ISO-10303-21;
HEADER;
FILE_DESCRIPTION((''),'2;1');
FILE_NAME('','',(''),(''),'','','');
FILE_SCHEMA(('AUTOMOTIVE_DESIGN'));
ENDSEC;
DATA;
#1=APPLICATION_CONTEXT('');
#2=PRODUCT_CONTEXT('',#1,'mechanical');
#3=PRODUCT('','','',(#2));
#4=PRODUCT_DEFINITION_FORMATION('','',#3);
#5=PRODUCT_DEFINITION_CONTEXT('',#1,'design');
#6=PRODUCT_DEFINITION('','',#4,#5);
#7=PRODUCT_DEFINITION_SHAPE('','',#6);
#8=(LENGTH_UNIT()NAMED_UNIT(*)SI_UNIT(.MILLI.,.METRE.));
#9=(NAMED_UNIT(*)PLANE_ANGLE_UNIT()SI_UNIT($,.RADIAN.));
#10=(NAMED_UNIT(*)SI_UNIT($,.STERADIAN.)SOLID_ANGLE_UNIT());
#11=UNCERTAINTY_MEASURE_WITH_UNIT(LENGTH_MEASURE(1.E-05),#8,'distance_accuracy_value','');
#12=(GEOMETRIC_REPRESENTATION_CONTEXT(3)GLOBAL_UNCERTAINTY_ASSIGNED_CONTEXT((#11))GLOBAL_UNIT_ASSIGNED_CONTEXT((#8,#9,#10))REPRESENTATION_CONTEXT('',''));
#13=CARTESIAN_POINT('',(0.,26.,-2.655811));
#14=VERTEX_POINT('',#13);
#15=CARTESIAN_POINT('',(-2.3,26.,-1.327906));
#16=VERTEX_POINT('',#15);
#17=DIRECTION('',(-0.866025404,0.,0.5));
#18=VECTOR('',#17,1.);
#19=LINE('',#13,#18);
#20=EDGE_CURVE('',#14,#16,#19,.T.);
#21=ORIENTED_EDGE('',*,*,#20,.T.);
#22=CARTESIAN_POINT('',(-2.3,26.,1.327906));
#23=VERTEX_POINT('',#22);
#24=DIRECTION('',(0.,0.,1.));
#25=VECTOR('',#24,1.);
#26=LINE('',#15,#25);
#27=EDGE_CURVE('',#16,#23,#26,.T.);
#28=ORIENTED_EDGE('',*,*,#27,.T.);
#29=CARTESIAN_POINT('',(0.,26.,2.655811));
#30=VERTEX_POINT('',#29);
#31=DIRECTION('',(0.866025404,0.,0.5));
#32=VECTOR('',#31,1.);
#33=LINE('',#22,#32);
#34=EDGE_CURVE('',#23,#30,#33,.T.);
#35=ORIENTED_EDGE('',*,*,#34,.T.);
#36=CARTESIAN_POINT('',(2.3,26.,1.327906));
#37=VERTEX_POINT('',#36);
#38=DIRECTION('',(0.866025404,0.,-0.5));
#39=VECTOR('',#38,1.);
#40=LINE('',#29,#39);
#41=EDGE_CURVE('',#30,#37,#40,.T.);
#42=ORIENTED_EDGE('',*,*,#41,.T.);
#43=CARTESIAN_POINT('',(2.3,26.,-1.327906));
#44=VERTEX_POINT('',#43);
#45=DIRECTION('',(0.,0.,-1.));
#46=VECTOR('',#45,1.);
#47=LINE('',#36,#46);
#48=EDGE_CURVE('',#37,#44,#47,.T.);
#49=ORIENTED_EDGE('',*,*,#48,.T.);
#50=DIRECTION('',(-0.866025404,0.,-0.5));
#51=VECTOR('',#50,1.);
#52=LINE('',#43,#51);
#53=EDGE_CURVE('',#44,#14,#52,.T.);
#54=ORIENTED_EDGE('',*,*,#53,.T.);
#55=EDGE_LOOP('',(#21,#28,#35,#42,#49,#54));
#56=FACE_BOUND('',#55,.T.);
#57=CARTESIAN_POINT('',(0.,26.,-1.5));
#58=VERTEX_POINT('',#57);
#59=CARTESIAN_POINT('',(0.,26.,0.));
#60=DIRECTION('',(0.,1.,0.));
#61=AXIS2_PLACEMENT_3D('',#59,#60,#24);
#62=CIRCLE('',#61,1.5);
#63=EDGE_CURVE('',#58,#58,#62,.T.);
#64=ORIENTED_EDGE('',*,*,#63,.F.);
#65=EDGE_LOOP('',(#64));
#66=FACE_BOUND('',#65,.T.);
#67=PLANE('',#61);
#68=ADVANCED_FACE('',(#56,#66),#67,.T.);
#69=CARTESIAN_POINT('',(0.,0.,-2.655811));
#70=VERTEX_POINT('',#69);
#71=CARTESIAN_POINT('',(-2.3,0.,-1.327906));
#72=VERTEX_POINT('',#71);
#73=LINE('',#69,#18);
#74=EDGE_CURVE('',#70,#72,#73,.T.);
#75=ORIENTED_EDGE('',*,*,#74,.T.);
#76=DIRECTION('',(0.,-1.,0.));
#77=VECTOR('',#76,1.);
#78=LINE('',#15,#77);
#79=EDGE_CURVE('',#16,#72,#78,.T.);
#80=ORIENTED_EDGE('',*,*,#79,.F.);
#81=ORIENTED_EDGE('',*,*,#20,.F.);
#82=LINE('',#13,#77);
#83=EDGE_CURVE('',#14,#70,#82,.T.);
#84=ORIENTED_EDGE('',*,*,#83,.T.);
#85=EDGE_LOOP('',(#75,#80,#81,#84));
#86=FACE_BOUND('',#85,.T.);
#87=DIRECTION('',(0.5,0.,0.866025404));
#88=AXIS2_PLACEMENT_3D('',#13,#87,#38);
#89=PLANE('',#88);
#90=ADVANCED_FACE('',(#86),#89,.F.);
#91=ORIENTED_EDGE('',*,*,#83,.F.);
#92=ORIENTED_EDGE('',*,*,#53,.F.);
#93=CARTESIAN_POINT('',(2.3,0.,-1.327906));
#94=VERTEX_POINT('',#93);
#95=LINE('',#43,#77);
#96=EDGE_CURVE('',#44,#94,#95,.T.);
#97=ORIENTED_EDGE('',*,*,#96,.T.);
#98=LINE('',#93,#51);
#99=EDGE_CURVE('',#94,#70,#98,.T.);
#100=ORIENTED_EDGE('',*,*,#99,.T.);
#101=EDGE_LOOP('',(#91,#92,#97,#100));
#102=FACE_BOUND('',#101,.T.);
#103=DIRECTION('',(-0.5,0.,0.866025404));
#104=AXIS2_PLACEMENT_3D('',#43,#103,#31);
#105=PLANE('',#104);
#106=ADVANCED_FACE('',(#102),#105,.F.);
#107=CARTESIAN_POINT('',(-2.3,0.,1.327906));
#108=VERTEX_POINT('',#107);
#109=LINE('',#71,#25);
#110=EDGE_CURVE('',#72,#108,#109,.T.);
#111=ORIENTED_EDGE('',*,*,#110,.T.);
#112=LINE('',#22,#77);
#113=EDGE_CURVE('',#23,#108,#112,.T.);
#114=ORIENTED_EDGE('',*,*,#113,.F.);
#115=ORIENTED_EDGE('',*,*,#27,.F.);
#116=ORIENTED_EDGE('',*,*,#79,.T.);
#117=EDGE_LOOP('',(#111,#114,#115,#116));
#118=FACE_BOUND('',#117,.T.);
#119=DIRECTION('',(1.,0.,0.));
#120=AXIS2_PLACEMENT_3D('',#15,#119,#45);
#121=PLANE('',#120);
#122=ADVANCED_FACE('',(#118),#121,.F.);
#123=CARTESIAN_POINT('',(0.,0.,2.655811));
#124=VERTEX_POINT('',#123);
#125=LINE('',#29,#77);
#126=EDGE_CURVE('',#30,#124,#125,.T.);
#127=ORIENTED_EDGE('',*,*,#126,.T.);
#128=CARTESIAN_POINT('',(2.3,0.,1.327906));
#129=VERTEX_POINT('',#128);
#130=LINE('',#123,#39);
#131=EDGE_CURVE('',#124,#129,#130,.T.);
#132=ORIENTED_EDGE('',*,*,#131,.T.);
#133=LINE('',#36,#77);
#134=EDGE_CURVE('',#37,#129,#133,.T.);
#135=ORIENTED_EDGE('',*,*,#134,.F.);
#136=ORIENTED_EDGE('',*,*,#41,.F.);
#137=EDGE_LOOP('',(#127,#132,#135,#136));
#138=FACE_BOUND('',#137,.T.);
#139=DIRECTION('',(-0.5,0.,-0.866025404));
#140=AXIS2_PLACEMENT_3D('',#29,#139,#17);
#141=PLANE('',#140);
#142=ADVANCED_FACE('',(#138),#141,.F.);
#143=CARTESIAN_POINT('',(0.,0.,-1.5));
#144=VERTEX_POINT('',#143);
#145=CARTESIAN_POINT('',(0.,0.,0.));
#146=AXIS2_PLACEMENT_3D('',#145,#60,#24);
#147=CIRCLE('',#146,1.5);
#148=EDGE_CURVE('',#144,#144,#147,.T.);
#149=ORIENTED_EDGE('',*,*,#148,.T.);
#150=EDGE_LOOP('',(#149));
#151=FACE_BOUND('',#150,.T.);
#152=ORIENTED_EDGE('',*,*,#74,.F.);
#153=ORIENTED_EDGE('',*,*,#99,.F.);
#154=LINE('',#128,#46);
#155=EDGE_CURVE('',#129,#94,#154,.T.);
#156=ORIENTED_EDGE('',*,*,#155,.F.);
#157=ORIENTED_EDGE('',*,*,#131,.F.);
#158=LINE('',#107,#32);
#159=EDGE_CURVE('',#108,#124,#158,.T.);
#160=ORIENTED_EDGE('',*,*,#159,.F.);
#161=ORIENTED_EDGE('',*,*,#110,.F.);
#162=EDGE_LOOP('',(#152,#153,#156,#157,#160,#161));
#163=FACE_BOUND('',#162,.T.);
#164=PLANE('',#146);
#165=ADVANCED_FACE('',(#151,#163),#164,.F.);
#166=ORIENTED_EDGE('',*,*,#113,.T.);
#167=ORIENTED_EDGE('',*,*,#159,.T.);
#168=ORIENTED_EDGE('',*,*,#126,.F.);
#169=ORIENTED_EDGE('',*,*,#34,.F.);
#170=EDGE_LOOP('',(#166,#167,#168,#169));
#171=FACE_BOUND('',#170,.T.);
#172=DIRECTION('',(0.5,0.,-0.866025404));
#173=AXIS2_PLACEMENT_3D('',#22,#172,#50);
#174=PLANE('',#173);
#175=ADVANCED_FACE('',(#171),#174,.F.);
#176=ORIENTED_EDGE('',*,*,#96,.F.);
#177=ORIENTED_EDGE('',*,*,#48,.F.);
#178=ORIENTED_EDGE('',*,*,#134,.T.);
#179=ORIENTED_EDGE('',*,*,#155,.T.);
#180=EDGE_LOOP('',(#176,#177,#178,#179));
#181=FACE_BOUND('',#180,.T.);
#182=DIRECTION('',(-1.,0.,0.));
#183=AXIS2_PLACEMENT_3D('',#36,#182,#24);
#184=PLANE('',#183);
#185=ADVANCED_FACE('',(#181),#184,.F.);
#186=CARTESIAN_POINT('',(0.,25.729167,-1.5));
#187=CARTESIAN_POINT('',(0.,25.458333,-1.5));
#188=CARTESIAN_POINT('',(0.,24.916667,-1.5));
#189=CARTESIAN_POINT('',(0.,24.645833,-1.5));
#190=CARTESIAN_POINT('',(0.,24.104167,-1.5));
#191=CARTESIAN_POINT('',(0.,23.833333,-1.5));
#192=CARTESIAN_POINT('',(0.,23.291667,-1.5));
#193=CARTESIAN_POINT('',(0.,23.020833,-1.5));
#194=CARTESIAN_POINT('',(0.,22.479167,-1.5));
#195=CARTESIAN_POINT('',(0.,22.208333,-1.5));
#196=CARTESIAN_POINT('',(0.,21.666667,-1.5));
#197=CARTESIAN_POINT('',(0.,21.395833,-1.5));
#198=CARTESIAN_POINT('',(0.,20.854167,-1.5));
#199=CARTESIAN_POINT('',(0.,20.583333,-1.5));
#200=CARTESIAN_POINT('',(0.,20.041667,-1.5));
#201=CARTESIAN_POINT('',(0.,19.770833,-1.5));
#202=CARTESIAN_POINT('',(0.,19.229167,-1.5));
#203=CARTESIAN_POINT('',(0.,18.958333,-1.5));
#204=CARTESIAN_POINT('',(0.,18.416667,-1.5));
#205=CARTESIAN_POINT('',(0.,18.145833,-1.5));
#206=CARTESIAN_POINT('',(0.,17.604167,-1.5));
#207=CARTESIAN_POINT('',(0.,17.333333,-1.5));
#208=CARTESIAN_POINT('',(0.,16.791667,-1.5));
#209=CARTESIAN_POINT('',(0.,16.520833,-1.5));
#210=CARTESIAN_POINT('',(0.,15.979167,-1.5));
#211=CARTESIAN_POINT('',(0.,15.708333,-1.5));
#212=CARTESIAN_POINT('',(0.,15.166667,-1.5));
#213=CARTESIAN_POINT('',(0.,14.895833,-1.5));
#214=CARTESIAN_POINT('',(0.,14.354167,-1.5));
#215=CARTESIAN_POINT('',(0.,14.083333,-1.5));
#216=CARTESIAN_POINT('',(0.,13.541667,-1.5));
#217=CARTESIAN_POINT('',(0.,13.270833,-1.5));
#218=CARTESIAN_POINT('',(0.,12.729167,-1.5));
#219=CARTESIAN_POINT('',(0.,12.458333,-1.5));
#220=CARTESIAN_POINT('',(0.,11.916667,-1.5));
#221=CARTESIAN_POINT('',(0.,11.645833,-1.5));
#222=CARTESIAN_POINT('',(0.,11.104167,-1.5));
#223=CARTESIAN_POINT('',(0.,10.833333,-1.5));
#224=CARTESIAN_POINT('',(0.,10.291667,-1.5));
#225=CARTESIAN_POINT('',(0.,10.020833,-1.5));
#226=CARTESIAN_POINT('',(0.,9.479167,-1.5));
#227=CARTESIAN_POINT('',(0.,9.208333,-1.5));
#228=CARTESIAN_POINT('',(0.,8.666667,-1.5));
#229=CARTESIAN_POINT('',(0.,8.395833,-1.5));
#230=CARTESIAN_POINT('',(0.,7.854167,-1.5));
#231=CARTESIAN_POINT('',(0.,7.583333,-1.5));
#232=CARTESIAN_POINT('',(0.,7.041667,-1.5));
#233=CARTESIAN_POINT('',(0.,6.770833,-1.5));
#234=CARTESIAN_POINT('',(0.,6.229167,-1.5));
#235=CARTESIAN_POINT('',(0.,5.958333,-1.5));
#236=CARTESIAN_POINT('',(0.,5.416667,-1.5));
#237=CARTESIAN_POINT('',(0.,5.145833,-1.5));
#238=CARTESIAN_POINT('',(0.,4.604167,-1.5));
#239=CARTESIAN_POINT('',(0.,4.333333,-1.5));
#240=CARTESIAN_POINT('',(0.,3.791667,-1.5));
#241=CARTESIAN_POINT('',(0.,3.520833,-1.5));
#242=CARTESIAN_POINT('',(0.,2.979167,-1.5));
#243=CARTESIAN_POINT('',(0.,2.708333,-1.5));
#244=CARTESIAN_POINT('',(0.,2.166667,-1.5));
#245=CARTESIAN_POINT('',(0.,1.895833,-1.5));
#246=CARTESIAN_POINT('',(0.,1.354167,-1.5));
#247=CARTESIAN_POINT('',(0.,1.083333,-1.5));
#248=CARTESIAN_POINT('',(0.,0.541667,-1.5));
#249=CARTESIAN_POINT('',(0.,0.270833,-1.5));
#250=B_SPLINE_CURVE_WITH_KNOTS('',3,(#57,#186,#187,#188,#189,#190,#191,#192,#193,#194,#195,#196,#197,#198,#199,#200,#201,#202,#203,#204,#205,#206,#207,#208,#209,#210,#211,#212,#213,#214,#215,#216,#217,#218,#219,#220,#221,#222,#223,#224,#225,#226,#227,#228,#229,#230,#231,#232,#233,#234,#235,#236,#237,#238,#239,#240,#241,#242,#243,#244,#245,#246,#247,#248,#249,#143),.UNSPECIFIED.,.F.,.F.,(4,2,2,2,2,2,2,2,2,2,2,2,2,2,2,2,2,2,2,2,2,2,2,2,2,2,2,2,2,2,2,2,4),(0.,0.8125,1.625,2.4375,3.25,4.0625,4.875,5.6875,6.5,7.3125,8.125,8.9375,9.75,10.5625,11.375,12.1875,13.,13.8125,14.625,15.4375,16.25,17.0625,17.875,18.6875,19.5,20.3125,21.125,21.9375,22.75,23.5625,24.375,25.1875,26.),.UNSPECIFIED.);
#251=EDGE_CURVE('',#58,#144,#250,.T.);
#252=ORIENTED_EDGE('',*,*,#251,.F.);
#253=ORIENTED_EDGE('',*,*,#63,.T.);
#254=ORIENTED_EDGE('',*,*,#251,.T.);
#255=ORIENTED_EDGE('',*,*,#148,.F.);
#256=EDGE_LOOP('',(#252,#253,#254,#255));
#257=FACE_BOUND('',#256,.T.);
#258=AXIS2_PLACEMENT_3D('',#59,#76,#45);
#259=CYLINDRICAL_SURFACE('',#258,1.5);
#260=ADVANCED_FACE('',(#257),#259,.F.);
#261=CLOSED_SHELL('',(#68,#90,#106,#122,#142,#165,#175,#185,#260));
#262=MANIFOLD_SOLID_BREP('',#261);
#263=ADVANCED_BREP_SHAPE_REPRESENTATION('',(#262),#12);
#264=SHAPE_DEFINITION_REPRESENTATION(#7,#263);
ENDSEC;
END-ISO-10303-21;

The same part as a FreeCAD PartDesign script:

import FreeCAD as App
import Part
import Sketcher
Q = App.Units.Quantity

doc = App.newDocument("Part")
body = doc.addObject("PartDesign::Body", "Body")

# Sketch on XZ plane
sketch1 = body.newObject("Sketcher::SketchObject", "Sketch")
sketch1.AttachmentSupport = (doc.getObject("XZ_Plane"), [""])
sketch1.MapMode = "FlatFace"
sketch1.addGeometry(Part.LineSegment(App.Vector(0, -2.7, 0), App.Vector(-2.3, -1.3, 0)), False)
sketch1.addGeometry(Part.LineSegment(App.Vector(-2.3, -1.3, 0), App.Vector(-2.3, 1.3, 0)), False)
sketch1.addGeometry(Part.LineSegment(App.Vector(-2.3, 1.3, 0), App.Vector(0, 2.7, 0)), False)
sketch1.addGeometry(Part.LineSegment(App.Vector(0, 2.7, 0), App.Vector(2.3, 1.3, 0)), False)
sketch1.addGeometry(Part.LineSegment(App.Vector(2.3, 1.3, 0), App.Vector(2.3, -1.3, 0)), False)
sketch1.addGeometry(Part.LineSegment(App.Vector(2.3, -1.3, 0), App.Vector(0, -2.7, 0)), False)
sketch1.addGeometry(Part.Circle(App.Vector(0, 0, 0), App.Vector(0, 0, 1), 1.5), False)
sketch1.addConstraint(Sketcher.Constraint("Coincident", 0, 2, 1, 1))
sketch1.addConstraint(Sketcher.Constraint("Coincident", 1, 2, 2, 1))
sketch1.addConstraint(Sketcher.Constraint("Coincident", 2, 2, 3, 1))
sketch1.addConstraint(Sketcher.Constraint("Coincident", 3, 2, 4, 1))
sketch1.addConstraint(Sketcher.Constraint("Coincident", 4, 2, 5, 1))
sketch1.addConstraint(Sketcher.Constraint("Coincident", 5, 2, 0, 1))
sketch1.addConstraint(Sketcher.Constraint("Vertical", 1))
sketch1.addConstraint(Sketcher.Constraint("Vertical", 4))
sketch1.addConstraint(Sketcher.Constraint("Coincident", 6, 3, -1, 1))
sketch1.addConstraint(Sketcher.Constraint("Symmetric", 0, 2, 3, 2, -1, 1))
sketch1.addConstraint(Sketcher.Constraint("Symmetric", 2, 2, 5, 2, -1, 1))
sketch1.addConstraint(Sketcher.Constraint("PointOnObject", 2, 2, -2))
sketch1.addConstraint(Sketcher.Constraint("Parallel", 2, 5))
sketch1.addConstraint(Sketcher.Constraint("Horizontal", 1, 2, 3, 2))
sketch1.addConstraint(Sketcher.Constraint("Diameter", 6, 3.0))
sketch1.addConstraint(Sketcher.Constraint("Angle", 0, Q("150 deg")))
sketch1.addConstraint(Sketcher.Constraint("DistanceX", 0, 2, -1, 1, 2.3))
sketch1.addConstraint(Sketcher.Constraint("DistanceY", 1, 1, 1, 2, 2.655811))
pad1 = body.newObject("PartDesign::Pad", "Pad")
pad1.Profile = sketch1
pad1.Length = 26
pad1.Reversed = True

doc.recompute()
